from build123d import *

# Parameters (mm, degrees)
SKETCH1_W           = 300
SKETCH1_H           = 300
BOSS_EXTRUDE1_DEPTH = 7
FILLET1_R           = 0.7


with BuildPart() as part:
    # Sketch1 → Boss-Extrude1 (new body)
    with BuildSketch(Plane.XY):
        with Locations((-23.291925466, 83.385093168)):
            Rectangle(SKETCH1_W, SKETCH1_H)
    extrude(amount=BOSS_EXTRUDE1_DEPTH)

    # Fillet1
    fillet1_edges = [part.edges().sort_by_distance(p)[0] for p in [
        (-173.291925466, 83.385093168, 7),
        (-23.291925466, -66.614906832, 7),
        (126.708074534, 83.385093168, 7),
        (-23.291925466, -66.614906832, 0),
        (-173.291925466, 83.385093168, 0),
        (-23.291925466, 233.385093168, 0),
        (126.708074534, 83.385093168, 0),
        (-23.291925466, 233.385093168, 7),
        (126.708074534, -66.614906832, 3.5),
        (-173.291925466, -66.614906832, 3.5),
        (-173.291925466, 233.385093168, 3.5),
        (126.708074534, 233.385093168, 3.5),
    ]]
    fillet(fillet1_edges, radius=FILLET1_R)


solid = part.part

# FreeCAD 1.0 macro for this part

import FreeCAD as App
import Part
import Sketcher
Q = App.Units.Quantity

doc = App.newDocument("Part")
params = doc.addObject("Spreadsheet::Sheet", "Params")
for row, (alias, value) in enumerate([
    ("sketch1_width", "300 mm"),
    ("pad1_length", "7 mm"),
    ("fillet_radius", "0.7 mm"),
], start=1):
    params.set(f"A{row}", alias)
    params.set(f"B{row}", "=" + value)
    params.setAlias(f"B{row}", alias)

body = doc.addObject("PartDesign::Body", "Body")

# Sketch on XY plane
sketch1 = body.newObject("Sketcher::SketchObject", "Sketch")
sketch1.AttachmentSupport = (doc.getObject("XY_Plane"), [""])
sketch1.MapMode = "FlatFace"
sketch1.addGeometry(Part.LineSegment(App.Vector(-173, 233, 0), App.Vector(-173, -67, 0)), False)
sketch1.addGeometry(Part.LineSegment(App.Vector(-173, -67, 0), App.Vector(127, -67, 0)), False)
sketch1.addGeometry(Part.LineSegment(App.Vector(127, -67, 0), App.Vector(127, 233, 0)), False)
sketch1.addGeometry(Part.LineSegment(App.Vector(127, 233, 0), App.Vector(-173, 233, 0)), False)
sketch1.addConstraint(Sketcher.Constraint("Coincident", 0, 2, 1, 1))
sketch1.addConstraint(Sketcher.Constraint("Coincident", 1, 2, 2, 1))
sketch1.addConstraint(Sketcher.Constraint("Coincident", 2, 2, 3, 1))
sketch1.addConstraint(Sketcher.Constraint("Coincident", 3, 2, 0, 1))
sketch1.addConstraint(Sketcher.Constraint("Vertical", 0))
sketch1.addConstraint(Sketcher.Constraint("Horizontal", 1))
sketch1.addConstraint(Sketcher.Constraint("Vertical", 2))
sketch1.addConstraint(Sketcher.Constraint("Horizontal", 3))
sketch1.addConstraint(Sketcher.Constraint("Equal", 3, 0))
sketch1.addConstraint(Sketcher.Constraint("DistanceX", 1, 1, 1, 2, Q("300 mm")))
sketch1.addConstraint(Sketcher.Constraint("DistanceX", 0, 2, -1, 1, Q("173.291925 mm")))
sketch1.addConstraint(Sketcher.Constraint("DistanceY", 0, 2, -1, 1, Q("66.614907 mm")))
sketch1.setExpression("Constraints[9]", "Params.sketch1_width")
pad1 = body.newObject("PartDesign::Pad", "Pad")
pad1.Profile = sketch1
pad1.setExpression("Length", "Params.pad1_length")
doc.recompute()

fillet = body.newObject("PartDesign::Fillet", "Fillet")
fillet.Base = (pad1, ["Edge1"])
fillet.UseAllEdges = True
fillet.setExpression("Radius", "Params.fillet_radius")

doc.recompute()
